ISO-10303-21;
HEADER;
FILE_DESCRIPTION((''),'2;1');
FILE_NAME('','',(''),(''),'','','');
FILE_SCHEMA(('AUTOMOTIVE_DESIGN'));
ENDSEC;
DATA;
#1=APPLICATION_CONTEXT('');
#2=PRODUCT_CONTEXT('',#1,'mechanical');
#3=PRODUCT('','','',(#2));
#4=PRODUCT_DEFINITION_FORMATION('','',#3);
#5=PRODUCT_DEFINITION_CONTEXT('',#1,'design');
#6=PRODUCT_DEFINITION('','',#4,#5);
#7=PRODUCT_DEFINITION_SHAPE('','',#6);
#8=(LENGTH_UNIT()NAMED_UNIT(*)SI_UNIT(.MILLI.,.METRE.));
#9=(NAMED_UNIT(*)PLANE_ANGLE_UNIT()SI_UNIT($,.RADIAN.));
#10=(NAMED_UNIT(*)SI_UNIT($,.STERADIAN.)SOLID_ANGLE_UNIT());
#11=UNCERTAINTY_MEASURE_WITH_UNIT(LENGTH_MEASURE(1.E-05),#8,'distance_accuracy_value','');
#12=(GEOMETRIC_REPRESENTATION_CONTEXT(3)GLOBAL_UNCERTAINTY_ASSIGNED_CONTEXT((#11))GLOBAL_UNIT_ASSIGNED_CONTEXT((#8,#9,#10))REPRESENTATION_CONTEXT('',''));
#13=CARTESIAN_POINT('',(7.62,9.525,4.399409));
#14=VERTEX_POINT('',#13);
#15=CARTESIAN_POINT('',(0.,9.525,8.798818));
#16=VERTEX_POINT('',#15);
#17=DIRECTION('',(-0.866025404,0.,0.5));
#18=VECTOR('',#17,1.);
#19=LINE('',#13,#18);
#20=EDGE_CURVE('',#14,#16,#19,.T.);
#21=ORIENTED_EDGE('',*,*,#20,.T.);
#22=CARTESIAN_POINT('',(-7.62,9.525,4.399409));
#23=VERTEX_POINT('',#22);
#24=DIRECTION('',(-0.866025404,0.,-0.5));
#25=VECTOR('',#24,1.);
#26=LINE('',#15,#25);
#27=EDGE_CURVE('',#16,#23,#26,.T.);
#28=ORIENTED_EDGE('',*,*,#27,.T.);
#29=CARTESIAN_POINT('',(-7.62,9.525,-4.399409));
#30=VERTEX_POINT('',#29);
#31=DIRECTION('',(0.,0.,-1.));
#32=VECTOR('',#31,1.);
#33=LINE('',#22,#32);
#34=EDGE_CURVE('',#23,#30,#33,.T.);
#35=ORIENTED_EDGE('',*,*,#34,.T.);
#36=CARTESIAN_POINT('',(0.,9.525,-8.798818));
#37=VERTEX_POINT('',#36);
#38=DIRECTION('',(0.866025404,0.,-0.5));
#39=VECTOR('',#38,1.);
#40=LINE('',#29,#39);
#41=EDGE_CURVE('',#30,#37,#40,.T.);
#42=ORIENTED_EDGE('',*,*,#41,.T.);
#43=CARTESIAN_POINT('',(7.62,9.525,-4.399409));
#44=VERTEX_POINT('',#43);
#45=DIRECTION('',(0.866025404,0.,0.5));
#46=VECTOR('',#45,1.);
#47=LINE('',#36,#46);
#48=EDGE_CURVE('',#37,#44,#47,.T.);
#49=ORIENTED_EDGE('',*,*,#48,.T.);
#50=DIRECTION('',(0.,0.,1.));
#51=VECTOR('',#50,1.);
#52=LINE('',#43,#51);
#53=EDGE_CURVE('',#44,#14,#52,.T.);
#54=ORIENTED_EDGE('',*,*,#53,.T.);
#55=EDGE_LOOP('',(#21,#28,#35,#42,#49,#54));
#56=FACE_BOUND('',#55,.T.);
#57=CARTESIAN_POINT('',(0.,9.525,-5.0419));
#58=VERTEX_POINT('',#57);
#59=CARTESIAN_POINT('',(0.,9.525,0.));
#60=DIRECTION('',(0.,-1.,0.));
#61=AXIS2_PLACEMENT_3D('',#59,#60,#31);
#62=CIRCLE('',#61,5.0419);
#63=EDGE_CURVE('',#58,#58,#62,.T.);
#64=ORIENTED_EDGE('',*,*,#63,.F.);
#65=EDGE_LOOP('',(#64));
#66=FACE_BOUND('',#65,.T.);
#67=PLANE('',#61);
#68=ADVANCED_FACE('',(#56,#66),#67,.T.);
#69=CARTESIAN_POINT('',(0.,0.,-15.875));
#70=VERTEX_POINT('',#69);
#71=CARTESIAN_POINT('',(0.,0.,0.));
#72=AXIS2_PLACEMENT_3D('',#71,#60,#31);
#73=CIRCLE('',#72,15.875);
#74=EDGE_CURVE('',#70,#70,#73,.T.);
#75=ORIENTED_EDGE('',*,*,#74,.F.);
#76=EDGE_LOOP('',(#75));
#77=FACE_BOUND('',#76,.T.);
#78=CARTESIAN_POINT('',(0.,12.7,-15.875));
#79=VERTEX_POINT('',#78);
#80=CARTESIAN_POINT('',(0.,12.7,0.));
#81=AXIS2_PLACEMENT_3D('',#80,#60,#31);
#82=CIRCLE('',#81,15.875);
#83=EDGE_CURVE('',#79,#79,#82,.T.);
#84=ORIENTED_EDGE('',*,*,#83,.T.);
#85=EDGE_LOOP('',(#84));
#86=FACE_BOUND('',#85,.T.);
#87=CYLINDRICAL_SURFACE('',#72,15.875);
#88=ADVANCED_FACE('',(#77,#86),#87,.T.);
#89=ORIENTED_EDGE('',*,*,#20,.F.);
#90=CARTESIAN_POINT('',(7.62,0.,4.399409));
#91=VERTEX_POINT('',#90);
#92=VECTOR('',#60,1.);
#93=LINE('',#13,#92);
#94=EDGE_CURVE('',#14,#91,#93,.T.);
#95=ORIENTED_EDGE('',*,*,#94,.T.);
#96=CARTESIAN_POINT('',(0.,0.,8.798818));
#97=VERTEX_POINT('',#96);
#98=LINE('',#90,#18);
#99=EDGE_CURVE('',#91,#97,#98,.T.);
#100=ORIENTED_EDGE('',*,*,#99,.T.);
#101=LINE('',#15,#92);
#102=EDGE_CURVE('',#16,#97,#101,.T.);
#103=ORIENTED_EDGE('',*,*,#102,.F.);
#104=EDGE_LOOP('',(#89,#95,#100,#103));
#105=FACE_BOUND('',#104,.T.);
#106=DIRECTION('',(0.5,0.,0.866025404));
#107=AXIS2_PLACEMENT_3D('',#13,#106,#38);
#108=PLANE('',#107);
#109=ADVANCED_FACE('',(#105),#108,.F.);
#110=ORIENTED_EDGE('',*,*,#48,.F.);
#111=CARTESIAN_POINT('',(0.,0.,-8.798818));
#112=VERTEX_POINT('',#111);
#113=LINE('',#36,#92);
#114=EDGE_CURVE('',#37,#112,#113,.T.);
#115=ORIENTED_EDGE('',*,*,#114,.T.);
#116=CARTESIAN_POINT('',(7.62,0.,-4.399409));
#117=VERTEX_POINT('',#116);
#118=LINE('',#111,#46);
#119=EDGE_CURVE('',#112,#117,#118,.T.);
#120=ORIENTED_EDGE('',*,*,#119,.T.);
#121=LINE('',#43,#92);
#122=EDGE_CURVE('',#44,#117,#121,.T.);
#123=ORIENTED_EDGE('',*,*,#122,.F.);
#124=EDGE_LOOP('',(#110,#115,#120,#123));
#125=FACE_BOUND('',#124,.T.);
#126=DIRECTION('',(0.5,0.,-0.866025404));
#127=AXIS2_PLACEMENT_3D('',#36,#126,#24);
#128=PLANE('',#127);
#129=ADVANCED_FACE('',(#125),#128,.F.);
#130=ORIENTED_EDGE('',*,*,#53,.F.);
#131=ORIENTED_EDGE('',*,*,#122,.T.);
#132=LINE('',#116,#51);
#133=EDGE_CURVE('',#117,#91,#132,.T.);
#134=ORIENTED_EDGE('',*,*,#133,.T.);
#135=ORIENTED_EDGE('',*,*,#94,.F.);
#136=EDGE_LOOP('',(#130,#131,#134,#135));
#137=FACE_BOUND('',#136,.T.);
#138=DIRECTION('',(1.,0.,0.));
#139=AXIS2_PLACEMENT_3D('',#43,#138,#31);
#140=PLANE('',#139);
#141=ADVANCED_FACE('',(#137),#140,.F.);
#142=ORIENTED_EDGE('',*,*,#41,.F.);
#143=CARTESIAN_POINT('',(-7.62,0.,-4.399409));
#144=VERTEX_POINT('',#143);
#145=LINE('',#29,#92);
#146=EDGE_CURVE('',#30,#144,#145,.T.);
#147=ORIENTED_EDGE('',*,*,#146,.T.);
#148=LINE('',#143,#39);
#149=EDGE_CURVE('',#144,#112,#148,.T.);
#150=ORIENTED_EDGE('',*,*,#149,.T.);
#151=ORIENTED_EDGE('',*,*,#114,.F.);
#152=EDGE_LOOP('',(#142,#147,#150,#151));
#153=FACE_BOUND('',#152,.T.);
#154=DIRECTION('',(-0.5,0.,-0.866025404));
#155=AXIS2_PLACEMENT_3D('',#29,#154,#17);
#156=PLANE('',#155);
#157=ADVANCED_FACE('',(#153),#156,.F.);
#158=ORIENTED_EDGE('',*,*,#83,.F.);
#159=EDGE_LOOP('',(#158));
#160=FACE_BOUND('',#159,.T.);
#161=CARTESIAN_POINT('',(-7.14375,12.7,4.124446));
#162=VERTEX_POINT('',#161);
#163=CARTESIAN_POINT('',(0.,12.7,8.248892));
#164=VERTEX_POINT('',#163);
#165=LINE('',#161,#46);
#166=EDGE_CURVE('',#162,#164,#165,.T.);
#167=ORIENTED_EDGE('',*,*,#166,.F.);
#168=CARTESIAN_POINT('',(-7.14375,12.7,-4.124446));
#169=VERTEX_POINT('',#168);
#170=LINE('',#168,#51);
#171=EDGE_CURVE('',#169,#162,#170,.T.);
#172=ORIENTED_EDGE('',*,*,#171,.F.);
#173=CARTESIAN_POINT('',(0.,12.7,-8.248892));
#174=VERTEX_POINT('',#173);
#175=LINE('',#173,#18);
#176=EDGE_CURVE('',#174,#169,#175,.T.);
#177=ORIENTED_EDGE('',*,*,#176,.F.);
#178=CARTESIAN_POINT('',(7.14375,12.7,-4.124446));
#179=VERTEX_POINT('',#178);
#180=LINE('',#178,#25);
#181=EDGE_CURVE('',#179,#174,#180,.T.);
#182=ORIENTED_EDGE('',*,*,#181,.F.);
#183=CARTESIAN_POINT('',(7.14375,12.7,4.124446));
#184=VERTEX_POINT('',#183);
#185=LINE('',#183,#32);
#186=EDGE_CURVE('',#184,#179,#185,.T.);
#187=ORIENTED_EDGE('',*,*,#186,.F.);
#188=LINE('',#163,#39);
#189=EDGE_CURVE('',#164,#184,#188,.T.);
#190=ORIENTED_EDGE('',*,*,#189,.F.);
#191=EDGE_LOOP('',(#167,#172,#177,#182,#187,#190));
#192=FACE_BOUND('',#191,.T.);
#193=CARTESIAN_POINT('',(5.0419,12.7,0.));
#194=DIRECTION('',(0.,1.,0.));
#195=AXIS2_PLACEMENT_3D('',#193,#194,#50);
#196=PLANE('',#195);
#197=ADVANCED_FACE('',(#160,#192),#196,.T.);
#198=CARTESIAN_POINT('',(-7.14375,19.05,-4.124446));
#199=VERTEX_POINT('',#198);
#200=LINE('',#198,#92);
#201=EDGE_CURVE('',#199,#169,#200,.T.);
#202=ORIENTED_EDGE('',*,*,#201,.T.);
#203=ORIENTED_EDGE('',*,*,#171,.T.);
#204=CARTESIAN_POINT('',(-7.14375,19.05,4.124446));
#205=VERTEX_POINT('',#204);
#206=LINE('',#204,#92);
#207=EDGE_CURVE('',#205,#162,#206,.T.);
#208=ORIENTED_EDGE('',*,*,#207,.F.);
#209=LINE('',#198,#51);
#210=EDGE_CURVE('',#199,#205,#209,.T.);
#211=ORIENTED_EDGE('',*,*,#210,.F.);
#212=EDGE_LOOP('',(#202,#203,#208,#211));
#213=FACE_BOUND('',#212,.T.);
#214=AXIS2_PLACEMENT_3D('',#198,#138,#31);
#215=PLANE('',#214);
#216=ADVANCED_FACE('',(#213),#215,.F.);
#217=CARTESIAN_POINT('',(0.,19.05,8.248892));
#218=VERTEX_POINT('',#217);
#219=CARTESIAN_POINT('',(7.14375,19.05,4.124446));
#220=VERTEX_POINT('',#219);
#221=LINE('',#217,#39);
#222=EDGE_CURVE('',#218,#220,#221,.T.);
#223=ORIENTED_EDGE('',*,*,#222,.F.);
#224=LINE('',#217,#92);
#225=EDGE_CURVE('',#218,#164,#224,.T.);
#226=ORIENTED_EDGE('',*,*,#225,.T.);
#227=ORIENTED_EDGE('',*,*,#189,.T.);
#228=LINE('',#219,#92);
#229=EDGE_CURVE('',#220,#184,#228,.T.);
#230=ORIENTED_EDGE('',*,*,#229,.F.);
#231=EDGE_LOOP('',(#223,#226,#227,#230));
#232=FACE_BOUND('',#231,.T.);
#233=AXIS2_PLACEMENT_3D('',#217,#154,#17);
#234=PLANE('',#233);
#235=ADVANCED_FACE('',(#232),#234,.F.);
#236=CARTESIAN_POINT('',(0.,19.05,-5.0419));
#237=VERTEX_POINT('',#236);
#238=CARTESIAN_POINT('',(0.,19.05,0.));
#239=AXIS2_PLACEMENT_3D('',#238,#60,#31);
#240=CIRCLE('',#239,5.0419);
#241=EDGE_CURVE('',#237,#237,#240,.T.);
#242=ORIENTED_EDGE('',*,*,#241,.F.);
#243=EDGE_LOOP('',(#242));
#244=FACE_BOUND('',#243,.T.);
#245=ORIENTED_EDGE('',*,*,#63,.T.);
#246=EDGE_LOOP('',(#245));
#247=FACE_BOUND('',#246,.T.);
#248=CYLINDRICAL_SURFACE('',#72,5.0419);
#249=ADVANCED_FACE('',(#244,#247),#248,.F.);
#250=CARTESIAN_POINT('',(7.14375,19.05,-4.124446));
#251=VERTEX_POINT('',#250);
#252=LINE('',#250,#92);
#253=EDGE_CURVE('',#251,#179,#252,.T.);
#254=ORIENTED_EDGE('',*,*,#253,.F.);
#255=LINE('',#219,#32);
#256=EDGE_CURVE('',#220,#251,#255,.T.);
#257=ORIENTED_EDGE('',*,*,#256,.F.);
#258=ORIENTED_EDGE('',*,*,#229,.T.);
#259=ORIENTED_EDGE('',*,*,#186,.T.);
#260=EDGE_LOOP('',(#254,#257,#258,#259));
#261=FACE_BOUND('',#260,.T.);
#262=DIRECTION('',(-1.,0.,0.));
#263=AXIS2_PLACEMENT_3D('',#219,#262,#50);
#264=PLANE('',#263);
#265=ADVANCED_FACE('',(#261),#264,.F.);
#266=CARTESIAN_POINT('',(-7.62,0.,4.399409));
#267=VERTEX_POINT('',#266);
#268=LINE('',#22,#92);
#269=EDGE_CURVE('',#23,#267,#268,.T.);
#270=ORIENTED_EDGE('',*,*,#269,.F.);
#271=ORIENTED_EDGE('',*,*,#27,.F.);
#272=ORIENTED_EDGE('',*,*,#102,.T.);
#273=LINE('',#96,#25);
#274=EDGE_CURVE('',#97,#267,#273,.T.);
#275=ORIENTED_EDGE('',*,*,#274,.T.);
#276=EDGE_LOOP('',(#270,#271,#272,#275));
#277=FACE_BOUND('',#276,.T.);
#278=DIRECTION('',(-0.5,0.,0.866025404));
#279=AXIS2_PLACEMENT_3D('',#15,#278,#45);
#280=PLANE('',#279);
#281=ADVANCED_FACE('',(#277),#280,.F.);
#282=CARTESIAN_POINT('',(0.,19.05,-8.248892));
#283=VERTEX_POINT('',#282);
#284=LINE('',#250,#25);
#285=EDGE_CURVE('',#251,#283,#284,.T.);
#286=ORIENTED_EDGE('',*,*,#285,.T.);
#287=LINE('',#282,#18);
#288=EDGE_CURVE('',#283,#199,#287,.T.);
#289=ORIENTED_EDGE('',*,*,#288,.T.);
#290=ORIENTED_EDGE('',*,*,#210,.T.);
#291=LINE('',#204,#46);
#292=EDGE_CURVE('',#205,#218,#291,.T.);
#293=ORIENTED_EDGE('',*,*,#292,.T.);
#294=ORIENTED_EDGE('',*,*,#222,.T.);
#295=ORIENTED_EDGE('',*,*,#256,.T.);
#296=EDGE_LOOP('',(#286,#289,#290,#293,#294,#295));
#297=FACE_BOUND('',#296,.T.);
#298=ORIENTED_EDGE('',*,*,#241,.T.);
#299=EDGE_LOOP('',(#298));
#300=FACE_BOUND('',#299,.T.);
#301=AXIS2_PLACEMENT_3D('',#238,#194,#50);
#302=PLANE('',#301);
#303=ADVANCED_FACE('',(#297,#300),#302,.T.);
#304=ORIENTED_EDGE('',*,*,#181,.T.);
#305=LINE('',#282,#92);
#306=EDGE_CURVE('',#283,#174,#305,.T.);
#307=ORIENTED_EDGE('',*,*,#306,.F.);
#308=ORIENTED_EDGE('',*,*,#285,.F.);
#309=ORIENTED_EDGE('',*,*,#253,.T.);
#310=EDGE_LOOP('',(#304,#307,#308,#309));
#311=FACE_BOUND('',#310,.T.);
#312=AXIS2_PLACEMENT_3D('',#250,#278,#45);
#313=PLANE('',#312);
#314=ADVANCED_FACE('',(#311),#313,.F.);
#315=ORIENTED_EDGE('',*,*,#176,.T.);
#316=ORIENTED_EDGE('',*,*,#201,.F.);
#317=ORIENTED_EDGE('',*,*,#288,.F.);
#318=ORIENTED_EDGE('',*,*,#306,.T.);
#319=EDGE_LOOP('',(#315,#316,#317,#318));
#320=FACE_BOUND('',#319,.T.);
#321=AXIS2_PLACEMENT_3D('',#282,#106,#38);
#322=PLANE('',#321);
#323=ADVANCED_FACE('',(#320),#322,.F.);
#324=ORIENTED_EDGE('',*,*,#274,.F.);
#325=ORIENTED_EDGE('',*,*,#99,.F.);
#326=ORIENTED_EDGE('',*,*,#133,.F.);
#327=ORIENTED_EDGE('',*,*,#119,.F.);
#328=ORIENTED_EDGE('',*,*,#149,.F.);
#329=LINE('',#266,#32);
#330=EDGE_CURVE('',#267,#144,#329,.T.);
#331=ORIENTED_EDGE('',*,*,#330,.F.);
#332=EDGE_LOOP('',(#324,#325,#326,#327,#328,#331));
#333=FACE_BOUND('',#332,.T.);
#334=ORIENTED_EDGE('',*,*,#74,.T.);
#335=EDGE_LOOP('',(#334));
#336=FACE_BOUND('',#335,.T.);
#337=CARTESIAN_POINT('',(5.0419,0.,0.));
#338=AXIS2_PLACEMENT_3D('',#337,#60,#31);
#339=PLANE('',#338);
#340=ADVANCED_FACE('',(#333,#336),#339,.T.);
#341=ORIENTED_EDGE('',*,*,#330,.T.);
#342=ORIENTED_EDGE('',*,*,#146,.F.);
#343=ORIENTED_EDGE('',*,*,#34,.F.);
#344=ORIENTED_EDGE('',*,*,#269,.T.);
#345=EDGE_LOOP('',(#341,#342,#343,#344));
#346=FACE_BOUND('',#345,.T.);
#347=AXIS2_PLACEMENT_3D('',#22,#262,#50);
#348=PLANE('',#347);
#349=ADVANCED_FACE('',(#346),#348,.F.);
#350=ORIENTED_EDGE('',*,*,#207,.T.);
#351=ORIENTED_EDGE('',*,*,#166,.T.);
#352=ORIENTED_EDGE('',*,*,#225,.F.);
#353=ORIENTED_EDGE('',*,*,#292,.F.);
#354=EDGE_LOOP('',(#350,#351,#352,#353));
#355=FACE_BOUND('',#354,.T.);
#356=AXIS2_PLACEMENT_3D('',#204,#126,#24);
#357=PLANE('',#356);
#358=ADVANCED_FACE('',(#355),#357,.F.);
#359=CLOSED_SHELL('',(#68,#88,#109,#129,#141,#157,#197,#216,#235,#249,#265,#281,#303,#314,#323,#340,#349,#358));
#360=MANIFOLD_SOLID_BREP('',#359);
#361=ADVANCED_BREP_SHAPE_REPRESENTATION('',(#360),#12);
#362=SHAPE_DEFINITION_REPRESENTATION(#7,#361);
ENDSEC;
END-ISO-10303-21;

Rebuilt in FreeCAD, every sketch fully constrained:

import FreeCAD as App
import Part
import Sketcher
Q = App.Units.Quantity

doc = App.newDocument("Part")
params = doc.addObject("Spreadsheet::Sheet", "Params")
for row, (alias, value) in enumerate([
    ("sketch1_height", "0.5 in"),
    ("revolution_angle", "360 deg"),
    ("pocket1_length", "0.375 in"),
    ("pad1_length", "0.25 in"),
    ("sketch4_diameter", "0.397 in"),
], start=1):
    params.set(f"A{row}", alias)
    params.set(f"B{row}", "=" + value)
    params.setAlias(f"B{row}", alias)

body = doc.addObject("PartDesign::Body", "Body")

sketch1 = doc.addObject("Sketcher::SketchObject", "Sketch")
body.addObject(sketch1)
sketch1.AttachmentSupport = (doc.XY_Plane, [""])
sketch1.MapMode = "FlatFace"
sketch1.addGeometry([
    Part.LineSegment(App.Vector(5, 13, 0), App.Vector(5, 0, 0)),
    Part.LineSegment(App.Vector(5, 0, 0), App.Vector(16, 0, 0)),
    Part.LineSegment(App.Vector(16, 0, 0), App.Vector(16, 13, 0)),
    Part.LineSegment(App.Vector(16, 13, 0), App.Vector(5, 13, 0)),
], False)
sketch1.addConstraint([
    Sketcher.Constraint("Coincident", 0, 2, 1, 1),
    Sketcher.Constraint("Coincident", 1, 2, 2, 1),
    Sketcher.Constraint("Coincident", 2, 2, 3, 1),
    Sketcher.Constraint("Coincident", 3, 2, 0, 1),
    Sketcher.Constraint("Vertical", 0),
    Sketcher.Constraint("Horizontal", 1),
    Sketcher.Constraint("Vertical", 2),
    Sketcher.Constraint("Horizontal", 3),
    Sketcher.Constraint("PointOnObject", 0, 2, -1),
    Sketcher.Constraint("DistanceY", 0, 2, 0, 1, Q("0.5 in")),
    Sketcher.Constraint("DistanceX", 1, 1, 1, 2, Q("0.4265 in")),
    Sketcher.Constraint("DistanceX", -1, 1, 1, 2, Q("0.625 in")),
])
sketch1.setExpression("Constraints[9]", "Params.sketch1_height")
revolution = doc.addObject("PartDesign::Revolution", "Revolution")
body.addObject(revolution)
revolution.Profile = sketch1
revolution.ReferenceAxis = (sketch1, ["V_Axis"])
revolution.setExpression("Angle", "Params.revolution_angle")

sketch2 = doc.addObject("Sketcher::SketchObject", "Sketch001")
body.addObject(sketch2)
sketch2.AttachmentSupport = (doc.XZ_Plane, [""])
sketch2.MapMode = "FlatFace"
sketch2.addGeometry([
    Part.LineSegment(App.Vector(8, -4, 0), App.Vector(8, 4, 0)),
    Part.LineSegment(App.Vector(8, 4, 0), App.Vector(0, 9, 0)),
    Part.LineSegment(App.Vector(0, 9, 0), App.Vector(-8, 4, 0)),
    Part.LineSegment(App.Vector(-8, 4, 0), App.Vector(-8, -4, 0)),
    Part.LineSegment(App.Vector(-8, -4, 0), App.Vector(0, -9, 0)),
    Part.LineSegment(App.Vector(0, -9, 0), App.Vector(8, -4, 0)),
], False)
sketch2.addConstraint([
    Sketcher.Constraint("Coincident", 0, 2, 1, 1),
    Sketcher.Constraint("Coincident", 1, 2, 2, 1),
    Sketcher.Constraint("Coincident", 2, 2, 3, 1),
    Sketcher.Constraint("Coincident", 3, 2, 4, 1),
    Sketcher.Constraint("Coincident", 4, 2, 5, 1),
    Sketcher.Constraint("Coincident", 5, 2, 0, 1),
    Sketcher.Constraint("Vertical", 0),
    Sketcher.Constraint("Vertical", 3),
    Sketcher.Constraint("Symmetric", 0, 2, 3, 2, -1, 1),
    Sketcher.Constraint("Symmetric", 1, 2, 4, 2, -1, 1),
    Sketcher.Constraint("PointOnObject", 1, 2, -2),
    Sketcher.Constraint("Parallel", 2, 5),
    Sketcher.Constraint("Horizontal", 0, 2, 2, 2),
    Sketcher.Constraint("Angle", 1, Q("150 deg")),
    Sketcher.Constraint("DistanceX", -1, 1, 0, 2, Q("0.3 in")),
    Sketcher.Constraint("DistanceY", 0, 1, 0, 2, 8.798818),
])
pocket1 = doc.addObject("PartDesign::Pocket", "Pocket")
body.addObject(pocket1)
pocket1.Profile = sketch2
pocket1.setExpression("Length", "Params.pocket1_length")

sketch3 = doc.addObject("Sketcher::SketchObject", "Sketch002")
body.addObject(sketch3)
sketch3.AttachmentSupport = (doc.XZ_Plane, [""])
sketch3.MapMode = "FlatFace"
sketch3.AttachmentOffset = App.Placement(App.Vector(0, 0, -0.5 * 25.4), App.Rotation())
sketch3.addGeometry([
    Part.LineSegment(App.Vector(0, -8, 0), App.Vector(-7, -4, 0)),
    Part.LineSegment(App.Vector(-7, -4, 0), App.Vector(-7, 4, 0)),
    Part.LineSegment(App.Vector(-7, 4, 0), App.Vector(0, 8, 0)),
    Part.LineSegment(App.Vector(0, 8, 0), App.Vector(7, 4, 0)),
    Part.LineSegment(App.Vector(7, 4, 0), App.Vector(7, -4, 0)),
    Part.LineSegment(App.Vector(7, -4, 0), App.Vector(0, -8, 0)),
], False)
sketch3.addConstraint([
    Sketcher.Constraint("Coincident", 0, 2, 1, 1),
    Sketcher.Constraint("Coincident", 1, 2, 2, 1),
    Sketcher.Constraint("Coincident", 2, 2, 3, 1),
    Sketcher.Constraint("Coincident", 3, 2, 4, 1),
    Sketcher.Constraint("Coincident", 4, 2, 5, 1),
    Sketcher.Constraint("Coincident", 5, 2, 0, 1),
    Sketcher.Constraint("Vertical", 1),
    Sketcher.Constraint("Vertical", 4),
    Sketcher.Constraint("Symmetric", 0, 2, 3, 2, -1, 1),
    Sketcher.Constraint("Symmetric", 2, 2, 5, 2, -1, 1),
    Sketcher.Constraint("PointOnObject", 2, 2, -2),
    Sketcher.Constraint("Parallel", 2, 5),
    Sketcher.Constraint("Horizontal", 1, 2, 3, 2),
    Sketcher.Constraint("Angle", 0, Q("150 deg")),
    Sketcher.Constraint("DistanceX", 0, 2, -1, 1, Q("0.28125 in")),
    Sketcher.Constraint("DistanceY", 1, 1, 1, 2, 8.248892),
])
pad1 = doc.addObject("PartDesign::Pad", "Pad")
body.addObject(pad1)
pad1.Profile = sketch3
pad1.setExpression("Length", "Params.pad1_length")
pad1.Reversed = True

sketch4 = doc.addObject("Sketcher::SketchObject", "Sketch003")
body.addObject(sketch4)
sketch4.AttachmentSupport = (doc.XZ_Plane, [""])
sketch4.MapMode = "FlatFace"
sketch4.AttachmentOffset = App.Placement(App.Vector(0, 0, -0.5 * 25.4), App.Rotation())
sketch4.addGeometry(Part.Circle(App.Vector(0, 0, 0), App.Vector(0, 0, 1), 5), False)
sketch4.addConstraint([
    Sketcher.Constraint("Coincident", 0, 3, -1, 1),
    Sketcher.Constraint("Diameter", 0, Q("0.397 in")),
])
sketch4.setExpression("Constraints[1]", "Params.sketch4_diameter")
pocket2 = doc.addObject("PartDesign::Pocket", "Pocket001")
body.addObject(pocket2)
pocket2.Profile = sketch4
pocket2.Type = "ThroughAll"

doc.recompute()
